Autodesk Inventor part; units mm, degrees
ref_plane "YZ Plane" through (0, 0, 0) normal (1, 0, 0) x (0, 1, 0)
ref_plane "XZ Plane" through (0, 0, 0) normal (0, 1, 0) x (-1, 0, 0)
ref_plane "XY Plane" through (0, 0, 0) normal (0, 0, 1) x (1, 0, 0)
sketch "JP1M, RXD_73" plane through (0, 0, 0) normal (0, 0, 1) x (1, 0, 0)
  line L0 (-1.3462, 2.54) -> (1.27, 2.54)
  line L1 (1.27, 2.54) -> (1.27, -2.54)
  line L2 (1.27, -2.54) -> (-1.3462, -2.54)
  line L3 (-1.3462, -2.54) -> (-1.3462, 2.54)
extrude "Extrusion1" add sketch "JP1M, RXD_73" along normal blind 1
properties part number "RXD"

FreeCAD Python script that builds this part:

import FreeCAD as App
import Part
import Sketcher
from FreeCAD import Vector
Q = App.Units.Quantity

doc = App.newDocument("Part")
body = doc.addObject("PartDesign::Body", "Body")

sketch1 = doc.addObject("Sketcher::SketchObject", "Sketch")
body.addObject(sketch1)
sketch1.AttachmentSupport = (doc.XY_Plane, [""])
sketch1.MapMode = "FlatFace"
sketch1.addGeometry([
    Part.LineSegment(Vector(1.3, 2.5, 0), Vector(-1.3, 2.5, 0)),
    Part.LineSegment(Vector(-1.3, 2.5, 0), Vector(-1.3, -2.5, 0)),
    Part.LineSegment(Vector(-1.3, -2.5, 0), Vector(1.3, -2.5, 0)),
    Part.LineSegment(Vector(1.3, -2.5, 0), Vector(1.3, 2.5, 0)),
], False)
sketch1.addConstraint([
    Sketcher.Constraint("Coincident", 0, 2, 1, 1),
    Sketcher.Constraint("Coincident", 1, 2, 2, 1),
    Sketcher.Constraint("Coincident", 2, 2, 3, 1),
    Sketcher.Constraint("Coincident", 3, 2, 0, 1),
    Sketcher.Constraint("Horizontal", 0),
    Sketcher.Constraint("Vertical", 1),
    Sketcher.Constraint("Horizontal", 2),
    Sketcher.Constraint("Vertical", 3),
    Sketcher.Constraint("DistanceY", 1, 2, 1, 1, Q("0.2 in")),
    Sketcher.Constraint("DistanceY", -1, 1, 0, 2, Q("0.1 in")),
    Sketcher.Constraint("DistanceX", 0, 2, 0, 1, Q("0.103 in")),
    Sketcher.Constraint("DistanceX", -1, 1, 2, 2, Q("0.05 in")),
])
pad1 = doc.addObject("PartDesign::Pad", "Pad")
body.addObject(pad1)
pad1.Profile = sketch1
pad1.Length = 1

doc.recompute()
